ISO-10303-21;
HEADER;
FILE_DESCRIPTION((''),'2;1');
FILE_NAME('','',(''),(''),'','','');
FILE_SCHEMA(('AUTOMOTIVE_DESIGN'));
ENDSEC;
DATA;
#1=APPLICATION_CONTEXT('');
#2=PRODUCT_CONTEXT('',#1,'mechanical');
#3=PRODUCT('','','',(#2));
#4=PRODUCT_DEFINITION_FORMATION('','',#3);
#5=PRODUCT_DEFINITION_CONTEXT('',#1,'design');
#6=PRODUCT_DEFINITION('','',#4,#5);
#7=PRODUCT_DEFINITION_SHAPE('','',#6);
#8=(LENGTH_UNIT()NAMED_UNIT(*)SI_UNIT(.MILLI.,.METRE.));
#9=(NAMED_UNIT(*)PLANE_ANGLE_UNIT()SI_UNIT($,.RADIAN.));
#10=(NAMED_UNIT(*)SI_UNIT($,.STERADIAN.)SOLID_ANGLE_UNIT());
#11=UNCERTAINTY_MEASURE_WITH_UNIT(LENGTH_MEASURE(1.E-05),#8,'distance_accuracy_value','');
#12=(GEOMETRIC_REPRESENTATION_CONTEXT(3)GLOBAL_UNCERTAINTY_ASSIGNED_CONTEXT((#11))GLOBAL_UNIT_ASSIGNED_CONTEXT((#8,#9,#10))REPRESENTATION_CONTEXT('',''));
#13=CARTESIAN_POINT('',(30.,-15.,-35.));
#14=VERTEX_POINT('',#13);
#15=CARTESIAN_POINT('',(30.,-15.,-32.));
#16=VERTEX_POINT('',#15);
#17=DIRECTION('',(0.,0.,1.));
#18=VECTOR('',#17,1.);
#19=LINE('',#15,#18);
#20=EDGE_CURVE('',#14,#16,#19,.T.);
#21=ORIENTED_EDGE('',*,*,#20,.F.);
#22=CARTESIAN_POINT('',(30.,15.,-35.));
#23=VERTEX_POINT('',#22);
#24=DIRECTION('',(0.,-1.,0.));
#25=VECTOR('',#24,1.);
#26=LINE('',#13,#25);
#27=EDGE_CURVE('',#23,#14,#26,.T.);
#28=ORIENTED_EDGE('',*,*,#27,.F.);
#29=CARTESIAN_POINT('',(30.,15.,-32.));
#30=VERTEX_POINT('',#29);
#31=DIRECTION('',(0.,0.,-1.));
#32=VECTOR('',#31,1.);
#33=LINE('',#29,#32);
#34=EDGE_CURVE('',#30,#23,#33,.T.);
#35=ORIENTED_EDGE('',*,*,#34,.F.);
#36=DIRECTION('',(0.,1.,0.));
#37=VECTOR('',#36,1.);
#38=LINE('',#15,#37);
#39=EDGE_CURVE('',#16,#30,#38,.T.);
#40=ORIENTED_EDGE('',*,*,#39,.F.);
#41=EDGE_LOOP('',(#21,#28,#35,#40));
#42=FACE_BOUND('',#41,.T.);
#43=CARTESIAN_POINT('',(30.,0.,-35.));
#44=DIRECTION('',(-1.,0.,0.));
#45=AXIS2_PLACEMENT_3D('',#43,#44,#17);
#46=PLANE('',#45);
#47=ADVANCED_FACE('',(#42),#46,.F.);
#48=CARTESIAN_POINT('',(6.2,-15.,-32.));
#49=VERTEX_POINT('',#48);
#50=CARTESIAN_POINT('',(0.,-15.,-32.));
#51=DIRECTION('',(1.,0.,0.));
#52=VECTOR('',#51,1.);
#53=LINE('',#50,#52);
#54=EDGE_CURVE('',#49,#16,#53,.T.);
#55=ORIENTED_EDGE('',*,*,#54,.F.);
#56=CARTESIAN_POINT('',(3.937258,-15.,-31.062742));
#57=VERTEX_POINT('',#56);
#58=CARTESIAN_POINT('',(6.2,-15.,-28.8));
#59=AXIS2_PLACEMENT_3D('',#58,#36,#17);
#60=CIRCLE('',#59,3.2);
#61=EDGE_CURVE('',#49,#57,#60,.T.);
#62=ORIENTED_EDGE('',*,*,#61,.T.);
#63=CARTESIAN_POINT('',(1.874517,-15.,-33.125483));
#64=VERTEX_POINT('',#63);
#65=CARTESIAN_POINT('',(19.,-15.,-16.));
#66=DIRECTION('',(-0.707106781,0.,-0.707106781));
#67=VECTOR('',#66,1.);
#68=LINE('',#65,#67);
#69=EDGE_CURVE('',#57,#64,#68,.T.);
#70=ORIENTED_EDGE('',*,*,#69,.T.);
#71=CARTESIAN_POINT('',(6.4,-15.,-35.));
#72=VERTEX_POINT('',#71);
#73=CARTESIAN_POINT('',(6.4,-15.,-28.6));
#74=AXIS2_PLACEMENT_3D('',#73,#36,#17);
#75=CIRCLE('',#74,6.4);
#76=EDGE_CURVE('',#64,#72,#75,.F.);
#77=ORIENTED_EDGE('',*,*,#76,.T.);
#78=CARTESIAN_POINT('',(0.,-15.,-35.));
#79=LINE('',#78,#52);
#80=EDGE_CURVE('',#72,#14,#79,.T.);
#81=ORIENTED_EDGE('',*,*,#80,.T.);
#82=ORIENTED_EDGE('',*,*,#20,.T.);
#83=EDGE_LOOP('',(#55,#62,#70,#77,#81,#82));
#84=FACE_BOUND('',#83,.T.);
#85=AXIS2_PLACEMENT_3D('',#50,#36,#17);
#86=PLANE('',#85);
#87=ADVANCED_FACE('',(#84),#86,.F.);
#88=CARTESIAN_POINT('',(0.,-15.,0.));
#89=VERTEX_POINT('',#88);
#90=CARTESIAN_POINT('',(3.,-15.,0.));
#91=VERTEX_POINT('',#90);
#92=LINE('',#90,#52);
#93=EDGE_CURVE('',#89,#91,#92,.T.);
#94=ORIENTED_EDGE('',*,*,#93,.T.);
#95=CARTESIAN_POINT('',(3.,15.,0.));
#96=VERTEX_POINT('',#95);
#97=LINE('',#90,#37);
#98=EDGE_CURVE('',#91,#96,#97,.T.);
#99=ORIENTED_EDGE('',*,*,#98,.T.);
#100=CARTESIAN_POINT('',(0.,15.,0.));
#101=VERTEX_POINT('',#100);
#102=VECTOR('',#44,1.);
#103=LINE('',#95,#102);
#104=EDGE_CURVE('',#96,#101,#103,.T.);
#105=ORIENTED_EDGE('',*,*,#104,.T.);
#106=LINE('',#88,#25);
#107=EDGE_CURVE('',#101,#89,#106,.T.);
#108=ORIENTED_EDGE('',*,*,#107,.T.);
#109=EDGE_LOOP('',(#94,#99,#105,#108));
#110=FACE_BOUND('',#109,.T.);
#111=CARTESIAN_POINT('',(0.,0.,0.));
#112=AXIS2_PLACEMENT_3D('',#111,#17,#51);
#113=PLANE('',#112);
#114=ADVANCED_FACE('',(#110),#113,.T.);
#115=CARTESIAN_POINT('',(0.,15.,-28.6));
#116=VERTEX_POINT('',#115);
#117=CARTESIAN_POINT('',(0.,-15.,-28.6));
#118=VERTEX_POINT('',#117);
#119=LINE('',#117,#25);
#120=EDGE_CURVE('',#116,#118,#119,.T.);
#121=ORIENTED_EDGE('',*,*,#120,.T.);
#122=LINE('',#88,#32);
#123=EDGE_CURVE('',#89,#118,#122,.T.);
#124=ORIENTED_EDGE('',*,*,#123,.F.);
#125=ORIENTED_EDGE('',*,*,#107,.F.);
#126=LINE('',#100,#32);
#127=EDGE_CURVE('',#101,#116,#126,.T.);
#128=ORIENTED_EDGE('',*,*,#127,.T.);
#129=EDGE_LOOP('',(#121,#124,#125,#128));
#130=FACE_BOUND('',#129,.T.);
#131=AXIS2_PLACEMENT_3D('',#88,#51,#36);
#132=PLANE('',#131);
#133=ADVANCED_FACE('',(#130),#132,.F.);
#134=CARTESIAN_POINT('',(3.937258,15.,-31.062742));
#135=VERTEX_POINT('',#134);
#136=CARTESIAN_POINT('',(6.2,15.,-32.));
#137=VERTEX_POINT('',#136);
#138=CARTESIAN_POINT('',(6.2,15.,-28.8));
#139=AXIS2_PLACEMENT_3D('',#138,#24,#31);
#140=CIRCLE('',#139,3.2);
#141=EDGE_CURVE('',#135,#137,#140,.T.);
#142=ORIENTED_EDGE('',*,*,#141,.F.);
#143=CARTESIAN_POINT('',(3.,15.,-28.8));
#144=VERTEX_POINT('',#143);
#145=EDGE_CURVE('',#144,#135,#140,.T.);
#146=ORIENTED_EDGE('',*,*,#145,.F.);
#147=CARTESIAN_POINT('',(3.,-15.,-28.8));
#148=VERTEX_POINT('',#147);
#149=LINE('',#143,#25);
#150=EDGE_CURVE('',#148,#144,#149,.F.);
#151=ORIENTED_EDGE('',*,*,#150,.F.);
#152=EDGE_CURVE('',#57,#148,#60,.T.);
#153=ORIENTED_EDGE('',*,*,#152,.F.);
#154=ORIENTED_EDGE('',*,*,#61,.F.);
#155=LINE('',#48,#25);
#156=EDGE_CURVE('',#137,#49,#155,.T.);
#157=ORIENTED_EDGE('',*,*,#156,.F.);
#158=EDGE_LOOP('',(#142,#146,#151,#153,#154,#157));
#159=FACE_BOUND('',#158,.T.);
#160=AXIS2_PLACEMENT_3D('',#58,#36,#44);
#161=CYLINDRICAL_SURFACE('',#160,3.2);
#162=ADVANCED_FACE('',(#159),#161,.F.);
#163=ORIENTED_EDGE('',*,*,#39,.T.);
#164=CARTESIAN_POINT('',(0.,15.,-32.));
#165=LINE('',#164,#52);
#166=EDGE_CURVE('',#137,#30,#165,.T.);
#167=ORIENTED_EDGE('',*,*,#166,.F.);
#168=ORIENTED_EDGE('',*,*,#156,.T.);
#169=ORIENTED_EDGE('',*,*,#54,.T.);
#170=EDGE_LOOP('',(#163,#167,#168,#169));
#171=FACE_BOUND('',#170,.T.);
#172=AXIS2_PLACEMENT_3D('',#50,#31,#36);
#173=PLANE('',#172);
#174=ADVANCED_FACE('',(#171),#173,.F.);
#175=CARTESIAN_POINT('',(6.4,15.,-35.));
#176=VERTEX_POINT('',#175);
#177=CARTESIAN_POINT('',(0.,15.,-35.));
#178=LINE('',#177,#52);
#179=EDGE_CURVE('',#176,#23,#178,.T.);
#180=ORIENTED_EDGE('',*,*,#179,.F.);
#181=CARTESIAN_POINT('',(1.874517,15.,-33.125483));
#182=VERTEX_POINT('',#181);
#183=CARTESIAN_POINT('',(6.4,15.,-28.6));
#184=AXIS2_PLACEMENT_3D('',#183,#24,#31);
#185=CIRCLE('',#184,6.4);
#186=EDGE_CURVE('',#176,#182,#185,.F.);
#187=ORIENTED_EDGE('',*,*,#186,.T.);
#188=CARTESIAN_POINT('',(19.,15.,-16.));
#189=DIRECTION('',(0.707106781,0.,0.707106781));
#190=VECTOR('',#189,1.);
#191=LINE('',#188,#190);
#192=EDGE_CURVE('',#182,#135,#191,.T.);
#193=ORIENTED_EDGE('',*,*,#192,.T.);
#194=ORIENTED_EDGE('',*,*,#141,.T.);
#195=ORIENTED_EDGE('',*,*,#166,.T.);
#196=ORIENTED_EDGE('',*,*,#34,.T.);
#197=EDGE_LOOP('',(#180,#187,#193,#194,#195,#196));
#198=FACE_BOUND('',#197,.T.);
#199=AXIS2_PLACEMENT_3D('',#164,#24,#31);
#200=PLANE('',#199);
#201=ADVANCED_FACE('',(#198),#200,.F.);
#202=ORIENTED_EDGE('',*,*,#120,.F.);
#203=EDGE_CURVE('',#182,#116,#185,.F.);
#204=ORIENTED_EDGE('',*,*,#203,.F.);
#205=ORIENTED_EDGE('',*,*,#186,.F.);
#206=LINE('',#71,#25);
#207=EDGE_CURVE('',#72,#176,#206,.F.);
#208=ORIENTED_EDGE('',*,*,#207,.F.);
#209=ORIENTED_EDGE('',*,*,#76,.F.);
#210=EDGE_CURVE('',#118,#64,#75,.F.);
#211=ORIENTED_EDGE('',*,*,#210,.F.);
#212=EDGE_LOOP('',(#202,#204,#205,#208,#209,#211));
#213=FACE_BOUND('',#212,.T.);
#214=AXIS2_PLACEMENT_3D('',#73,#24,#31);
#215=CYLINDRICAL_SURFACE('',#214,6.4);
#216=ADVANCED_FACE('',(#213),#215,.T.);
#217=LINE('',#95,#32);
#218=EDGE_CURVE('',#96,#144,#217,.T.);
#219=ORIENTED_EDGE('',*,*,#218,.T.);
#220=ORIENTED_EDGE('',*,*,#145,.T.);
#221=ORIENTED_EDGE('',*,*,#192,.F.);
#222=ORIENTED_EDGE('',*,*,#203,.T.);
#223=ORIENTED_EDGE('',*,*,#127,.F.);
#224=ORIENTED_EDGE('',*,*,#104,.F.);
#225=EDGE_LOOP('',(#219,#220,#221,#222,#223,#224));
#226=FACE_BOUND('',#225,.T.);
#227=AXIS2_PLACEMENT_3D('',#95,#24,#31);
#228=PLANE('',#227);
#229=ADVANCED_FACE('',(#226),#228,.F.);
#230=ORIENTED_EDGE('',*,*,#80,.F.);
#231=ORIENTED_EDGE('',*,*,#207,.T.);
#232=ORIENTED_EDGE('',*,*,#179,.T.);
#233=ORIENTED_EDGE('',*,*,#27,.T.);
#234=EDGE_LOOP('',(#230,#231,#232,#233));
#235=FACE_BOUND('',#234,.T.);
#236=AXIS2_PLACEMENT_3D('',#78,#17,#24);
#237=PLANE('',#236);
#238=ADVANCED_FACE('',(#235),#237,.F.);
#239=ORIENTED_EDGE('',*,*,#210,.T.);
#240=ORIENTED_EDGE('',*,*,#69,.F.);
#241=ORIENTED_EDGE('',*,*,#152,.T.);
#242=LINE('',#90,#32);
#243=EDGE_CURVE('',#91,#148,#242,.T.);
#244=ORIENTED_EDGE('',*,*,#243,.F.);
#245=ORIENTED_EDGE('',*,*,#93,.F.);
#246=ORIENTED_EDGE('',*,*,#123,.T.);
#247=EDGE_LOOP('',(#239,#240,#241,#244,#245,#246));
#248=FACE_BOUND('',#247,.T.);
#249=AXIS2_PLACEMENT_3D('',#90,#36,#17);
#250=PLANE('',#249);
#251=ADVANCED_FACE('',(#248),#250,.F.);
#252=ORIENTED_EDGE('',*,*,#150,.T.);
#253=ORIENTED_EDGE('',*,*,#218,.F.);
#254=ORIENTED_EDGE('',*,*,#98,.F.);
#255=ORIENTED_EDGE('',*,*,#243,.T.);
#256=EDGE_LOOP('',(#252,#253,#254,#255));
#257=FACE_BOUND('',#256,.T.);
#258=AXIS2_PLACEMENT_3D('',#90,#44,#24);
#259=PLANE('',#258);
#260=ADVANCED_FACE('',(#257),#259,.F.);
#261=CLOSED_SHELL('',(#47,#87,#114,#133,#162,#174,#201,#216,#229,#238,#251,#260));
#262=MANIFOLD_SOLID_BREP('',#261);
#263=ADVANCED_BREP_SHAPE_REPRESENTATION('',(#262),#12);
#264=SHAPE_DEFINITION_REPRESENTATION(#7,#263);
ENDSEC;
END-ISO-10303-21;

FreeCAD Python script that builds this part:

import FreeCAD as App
import Part
import Sketcher
Q = App.Units.Quantity


def edges_at(feature, points):
    """Names of the edges that pass closest to the given points."""
    edges = feature.Shape.Edges
    near = lambda p: min(range(len(edges)), key=lambda i: edges[i].distToShape(Part.Vertex(*p))[0])
    return sorted({f"Edge{near(p) + 1}" for p in points})

doc = App.newDocument("Part")
body = doc.addObject("PartDesign::Body", "Body")

# Sketch on XY plane
sketch1 = body.newObject("Sketcher::SketchObject", "Sketch")
sketch1.AttachmentSupport = (doc.getObject("XY_Plane"), [""])
sketch1.MapMode = "FlatFace"
sketch1.addGeometry(Part.LineSegment(App.Vector(0, 15, 0), App.Vector(0, -15, 0)), False)
sketch1.addGeometry(Part.LineSegment(App.Vector(0, -15, 0), App.Vector(3, -15, 0)), False)
sketch1.addGeometry(Part.LineSegment(App.Vector(3, -15, 0), App.Vector(3, 15, 0)), False)
sketch1.addGeometry(Part.LineSegment(App.Vector(3, 15, 0), App.Vector(0, 15, 0)), False)
sketch1.addConstraint(Sketcher.Constraint("Coincident", 0, 2, 1, 1))
sketch1.addConstraint(Sketcher.Constraint("Coincident", 1, 2, 2, 1))
sketch1.addConstraint(Sketcher.Constraint("Coincident", 2, 2, 3, 1))
sketch1.addConstraint(Sketcher.Constraint("Coincident", 3, 2, 0, 1))
sketch1.addConstraint(Sketcher.Constraint("Vertical", 0))
sketch1.addConstraint(Sketcher.Constraint("Horizontal", 1))
sketch1.addConstraint(Sketcher.Constraint("Vertical", 2))
sketch1.addConstraint(Sketcher.Constraint("Horizontal", 3))
sketch1.addConstraint(Sketcher.Constraint("Symmetric", 0, 2, 3, 2, -1, 1))
sketch1.addConstraint(Sketcher.Constraint("DistanceX", 1, 1, 1, 2, Q("3 mm")))
sketch1.addConstraint(Sketcher.Constraint("DistanceY", 0, 2, 0, 1, Q("30 mm")))

# Sketch on XZ plane
sketch2 = body.newObject("Sketcher::SketchObject", "Sketch001")
sketch2.AttachmentSupport = (doc.getObject("XZ_Plane"), [""])
sketch2.MapMode = "FlatFace"
sketch2.addGeometry(Part.LineSegment(App.Vector(0, 0, 0), App.Vector(0, -35, 0)), False)
sketch2.addGeometry(Part.LineSegment(App.Vector(0, -35, 0), App.Vector(30, -35, 0)), False)
sketch2.addConstraint(Sketcher.Constraint("Coincident", 0, 2, 1, 1))
sketch2.addConstraint(Sketcher.Constraint("Vertical", 0))
sketch2.addConstraint(Sketcher.Constraint("Horizontal", 1))
sketch2.addConstraint(Sketcher.Constraint("Coincident", 0, 1, -1, 1))
sketch2.addConstraint(Sketcher.Constraint("DistanceX", 1, 1, 1, 2, Q("30 mm")))
sketch2.addConstraint(Sketcher.Constraint("DistanceY", 0, 2, 0, 1, Q("35 mm")))
doc.recompute()

additivepipe = body.newObject("PartDesign::AdditivePipe", "AdditivePipe")
additivepipe.Profile = sketch1
additivepipe.Spine = (sketch2, ["Edge1", "Edge2"])
additivepipe.Transition = "Right corner"
doc.recompute()

fillet = body.newObject("PartDesign::Fillet", "Fillet")
fillet.Base = (additivepipe, edges_at(additivepipe, [(3, 0, -32)]))
fillet.Radius = 3.2
doc.recompute()

fillet2 = body.newObject("PartDesign::Fillet", "Fillet001")
fillet2.Base = (fillet, edges_at(fillet, [(0, 0, -35)]))
fillet2.Radius = 6.4

doc.recompute()
